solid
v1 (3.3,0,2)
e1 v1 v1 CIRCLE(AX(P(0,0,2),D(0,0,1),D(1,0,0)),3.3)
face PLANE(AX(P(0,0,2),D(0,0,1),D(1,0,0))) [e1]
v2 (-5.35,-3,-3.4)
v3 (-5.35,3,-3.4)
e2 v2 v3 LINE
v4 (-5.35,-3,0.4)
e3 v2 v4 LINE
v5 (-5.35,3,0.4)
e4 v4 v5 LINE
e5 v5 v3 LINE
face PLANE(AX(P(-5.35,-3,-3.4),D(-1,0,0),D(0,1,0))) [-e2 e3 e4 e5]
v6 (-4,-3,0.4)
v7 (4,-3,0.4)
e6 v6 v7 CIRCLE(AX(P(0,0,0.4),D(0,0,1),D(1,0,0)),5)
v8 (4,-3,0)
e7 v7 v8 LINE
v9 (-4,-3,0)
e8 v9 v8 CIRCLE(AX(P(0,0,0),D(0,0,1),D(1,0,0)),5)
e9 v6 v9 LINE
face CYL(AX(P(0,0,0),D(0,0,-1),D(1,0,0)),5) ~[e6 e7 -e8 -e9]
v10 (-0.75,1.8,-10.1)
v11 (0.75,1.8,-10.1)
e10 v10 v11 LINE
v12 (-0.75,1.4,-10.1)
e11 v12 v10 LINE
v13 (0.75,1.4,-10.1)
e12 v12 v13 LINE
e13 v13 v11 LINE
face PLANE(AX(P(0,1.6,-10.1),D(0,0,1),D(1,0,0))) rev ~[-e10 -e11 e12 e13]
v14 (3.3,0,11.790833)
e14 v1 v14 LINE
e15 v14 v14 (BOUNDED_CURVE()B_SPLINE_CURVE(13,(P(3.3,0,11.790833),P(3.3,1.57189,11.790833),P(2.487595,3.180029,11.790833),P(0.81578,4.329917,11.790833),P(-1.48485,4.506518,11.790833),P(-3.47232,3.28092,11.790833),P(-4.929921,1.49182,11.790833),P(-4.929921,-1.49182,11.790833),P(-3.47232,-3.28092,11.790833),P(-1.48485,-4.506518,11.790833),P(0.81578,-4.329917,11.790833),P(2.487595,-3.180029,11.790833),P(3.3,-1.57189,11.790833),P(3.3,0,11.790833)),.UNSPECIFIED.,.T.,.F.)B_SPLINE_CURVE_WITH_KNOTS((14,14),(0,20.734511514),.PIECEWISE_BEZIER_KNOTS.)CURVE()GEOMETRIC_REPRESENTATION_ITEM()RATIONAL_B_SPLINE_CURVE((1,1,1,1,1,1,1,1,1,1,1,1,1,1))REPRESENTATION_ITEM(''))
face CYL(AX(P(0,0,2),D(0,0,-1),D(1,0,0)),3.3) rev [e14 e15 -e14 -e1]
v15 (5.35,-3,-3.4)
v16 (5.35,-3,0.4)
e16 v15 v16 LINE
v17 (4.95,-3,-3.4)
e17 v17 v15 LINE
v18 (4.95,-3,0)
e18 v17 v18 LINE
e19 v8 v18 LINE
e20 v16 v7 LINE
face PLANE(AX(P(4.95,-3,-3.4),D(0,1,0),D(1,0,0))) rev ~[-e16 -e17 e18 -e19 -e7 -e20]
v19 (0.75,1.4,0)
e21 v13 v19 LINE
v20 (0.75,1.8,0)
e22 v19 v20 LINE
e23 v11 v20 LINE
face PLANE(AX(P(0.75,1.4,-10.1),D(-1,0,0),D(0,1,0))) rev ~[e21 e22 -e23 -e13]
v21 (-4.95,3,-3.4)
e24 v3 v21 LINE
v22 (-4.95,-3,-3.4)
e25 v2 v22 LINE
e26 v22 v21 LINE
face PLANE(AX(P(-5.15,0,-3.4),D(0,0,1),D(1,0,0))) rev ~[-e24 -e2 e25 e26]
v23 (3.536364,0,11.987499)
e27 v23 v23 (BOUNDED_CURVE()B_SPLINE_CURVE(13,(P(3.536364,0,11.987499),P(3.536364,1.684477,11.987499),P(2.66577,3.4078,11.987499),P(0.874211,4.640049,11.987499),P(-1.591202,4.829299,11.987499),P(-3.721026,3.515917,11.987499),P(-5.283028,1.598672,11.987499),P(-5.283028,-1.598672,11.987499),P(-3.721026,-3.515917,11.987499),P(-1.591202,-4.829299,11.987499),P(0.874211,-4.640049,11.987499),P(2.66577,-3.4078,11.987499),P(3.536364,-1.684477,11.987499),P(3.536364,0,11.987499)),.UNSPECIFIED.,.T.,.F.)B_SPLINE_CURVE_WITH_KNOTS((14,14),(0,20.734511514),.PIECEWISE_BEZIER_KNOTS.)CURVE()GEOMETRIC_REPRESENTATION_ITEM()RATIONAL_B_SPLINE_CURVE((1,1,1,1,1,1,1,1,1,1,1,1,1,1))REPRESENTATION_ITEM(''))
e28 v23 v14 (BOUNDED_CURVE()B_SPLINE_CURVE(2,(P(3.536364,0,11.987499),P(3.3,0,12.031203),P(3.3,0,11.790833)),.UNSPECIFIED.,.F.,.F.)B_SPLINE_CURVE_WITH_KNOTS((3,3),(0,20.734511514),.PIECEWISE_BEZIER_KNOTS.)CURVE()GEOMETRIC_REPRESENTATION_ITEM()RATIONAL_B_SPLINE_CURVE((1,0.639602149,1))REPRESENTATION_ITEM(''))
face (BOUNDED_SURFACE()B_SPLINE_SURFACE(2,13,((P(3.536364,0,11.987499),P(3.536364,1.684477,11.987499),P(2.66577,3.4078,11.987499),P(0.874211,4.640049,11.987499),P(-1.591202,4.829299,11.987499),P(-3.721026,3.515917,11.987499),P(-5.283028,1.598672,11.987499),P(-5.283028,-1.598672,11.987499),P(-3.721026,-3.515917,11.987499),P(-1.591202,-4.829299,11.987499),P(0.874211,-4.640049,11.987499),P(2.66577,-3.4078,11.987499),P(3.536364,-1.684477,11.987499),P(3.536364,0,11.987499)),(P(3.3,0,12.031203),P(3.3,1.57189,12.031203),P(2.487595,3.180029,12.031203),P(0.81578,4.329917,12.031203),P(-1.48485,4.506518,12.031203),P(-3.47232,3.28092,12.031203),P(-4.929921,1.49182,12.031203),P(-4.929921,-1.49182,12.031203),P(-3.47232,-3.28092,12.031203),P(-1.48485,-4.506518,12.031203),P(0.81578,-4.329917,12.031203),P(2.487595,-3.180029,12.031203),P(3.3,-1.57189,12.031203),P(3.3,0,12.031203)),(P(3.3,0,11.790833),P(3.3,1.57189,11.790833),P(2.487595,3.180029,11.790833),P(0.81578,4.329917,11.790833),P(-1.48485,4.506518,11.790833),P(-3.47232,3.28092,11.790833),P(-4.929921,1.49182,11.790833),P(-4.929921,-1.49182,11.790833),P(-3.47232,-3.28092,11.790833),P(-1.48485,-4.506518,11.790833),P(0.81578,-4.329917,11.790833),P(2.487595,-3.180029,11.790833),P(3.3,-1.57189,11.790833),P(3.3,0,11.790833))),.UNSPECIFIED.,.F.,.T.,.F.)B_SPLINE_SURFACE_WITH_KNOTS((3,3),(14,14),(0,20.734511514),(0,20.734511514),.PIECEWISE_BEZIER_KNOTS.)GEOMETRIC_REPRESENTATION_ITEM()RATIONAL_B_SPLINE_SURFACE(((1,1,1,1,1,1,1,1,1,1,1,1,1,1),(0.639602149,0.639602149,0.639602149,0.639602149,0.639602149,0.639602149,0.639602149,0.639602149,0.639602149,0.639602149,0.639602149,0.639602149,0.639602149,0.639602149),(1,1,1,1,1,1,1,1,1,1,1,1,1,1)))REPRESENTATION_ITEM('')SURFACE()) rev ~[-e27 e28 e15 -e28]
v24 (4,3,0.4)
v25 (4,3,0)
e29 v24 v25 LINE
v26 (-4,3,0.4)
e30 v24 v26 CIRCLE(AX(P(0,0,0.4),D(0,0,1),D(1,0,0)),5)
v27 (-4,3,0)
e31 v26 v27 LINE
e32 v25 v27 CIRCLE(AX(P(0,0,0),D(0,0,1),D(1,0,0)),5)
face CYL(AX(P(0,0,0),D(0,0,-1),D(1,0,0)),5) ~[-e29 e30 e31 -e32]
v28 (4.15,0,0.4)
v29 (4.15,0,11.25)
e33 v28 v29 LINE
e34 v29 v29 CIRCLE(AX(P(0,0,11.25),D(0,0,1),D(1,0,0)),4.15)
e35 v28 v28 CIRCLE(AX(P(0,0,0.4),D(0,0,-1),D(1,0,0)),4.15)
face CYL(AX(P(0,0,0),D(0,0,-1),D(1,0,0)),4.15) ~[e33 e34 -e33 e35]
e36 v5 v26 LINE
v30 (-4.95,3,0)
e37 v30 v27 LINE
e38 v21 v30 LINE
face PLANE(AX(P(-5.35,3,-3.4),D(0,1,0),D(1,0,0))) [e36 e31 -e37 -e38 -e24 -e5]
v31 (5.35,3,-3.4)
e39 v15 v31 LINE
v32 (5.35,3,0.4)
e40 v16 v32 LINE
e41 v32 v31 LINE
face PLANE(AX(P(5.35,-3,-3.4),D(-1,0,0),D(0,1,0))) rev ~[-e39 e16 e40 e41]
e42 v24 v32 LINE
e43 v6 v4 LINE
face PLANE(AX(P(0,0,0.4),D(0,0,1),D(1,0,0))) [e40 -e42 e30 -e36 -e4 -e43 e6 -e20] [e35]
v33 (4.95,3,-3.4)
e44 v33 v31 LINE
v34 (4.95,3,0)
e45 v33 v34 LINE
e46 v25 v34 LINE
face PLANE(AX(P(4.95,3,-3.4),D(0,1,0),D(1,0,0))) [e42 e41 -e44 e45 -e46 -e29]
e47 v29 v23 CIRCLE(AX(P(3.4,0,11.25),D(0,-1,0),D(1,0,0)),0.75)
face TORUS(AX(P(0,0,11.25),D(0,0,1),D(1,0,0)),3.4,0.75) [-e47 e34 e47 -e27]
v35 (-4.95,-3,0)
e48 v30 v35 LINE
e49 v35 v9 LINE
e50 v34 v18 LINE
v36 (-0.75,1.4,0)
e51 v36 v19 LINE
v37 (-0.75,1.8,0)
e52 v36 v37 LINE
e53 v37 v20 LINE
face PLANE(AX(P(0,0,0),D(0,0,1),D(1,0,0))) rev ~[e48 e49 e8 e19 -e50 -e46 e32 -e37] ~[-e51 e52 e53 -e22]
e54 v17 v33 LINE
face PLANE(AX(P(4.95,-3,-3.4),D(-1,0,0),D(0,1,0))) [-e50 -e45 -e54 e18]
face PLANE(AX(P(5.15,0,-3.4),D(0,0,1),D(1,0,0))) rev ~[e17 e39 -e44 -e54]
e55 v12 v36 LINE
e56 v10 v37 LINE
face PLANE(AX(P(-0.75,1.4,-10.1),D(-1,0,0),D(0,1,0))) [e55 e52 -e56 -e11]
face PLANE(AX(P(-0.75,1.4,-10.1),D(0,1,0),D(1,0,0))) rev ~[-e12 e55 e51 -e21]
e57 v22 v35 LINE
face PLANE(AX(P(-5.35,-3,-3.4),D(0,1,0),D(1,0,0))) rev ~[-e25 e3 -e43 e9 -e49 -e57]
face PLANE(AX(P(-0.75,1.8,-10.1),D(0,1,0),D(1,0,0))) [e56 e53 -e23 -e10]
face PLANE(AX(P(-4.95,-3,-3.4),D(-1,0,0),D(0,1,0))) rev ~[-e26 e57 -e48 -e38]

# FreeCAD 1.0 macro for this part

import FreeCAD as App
import Part
import Sketcher


def edges_at(feature, points):
    """Names of the edges that pass closest to the given points."""
    edges = feature.Shape.Edges
    near = lambda p: min(range(len(edges)), key=lambda i: edges[i].distToShape(Part.Vertex(*p))[0])
    return sorted({f"Edge{near(p) + 1}" for p in points})

doc = App.newDocument("Part")
body = doc.addObject("PartDesign::Body", "Body")

# Sketch on XY plane
sketch1 = body.newObject("Sketcher::SketchObject", "Sketch")
sketch1.AttachmentSupport = (doc.getObject("XY_Plane"), [""])
sketch1.MapMode = "FlatFace"
sketch1.addGeometry([
    Part.LineSegment(App.Vector(-5.35, 3, 0), App.Vector(-5.35, -3, 0)),
    Part.LineSegment(App.Vector(-5.35, -3, 0), App.Vector(5.35, -3, 0)),
    Part.LineSegment(App.Vector(5.35, -3, 0), App.Vector(5.35, 3, 0)),
    Part.LineSegment(App.Vector(5.35, 3, 0), App.Vector(-5.35, 3, 0)),
], False)
sketch1.addConstraint([
    Sketcher.Constraint("Coincident", 0, 2, 1, 1),
    Sketcher.Constraint("Coincident", 1, 2, 2, 1),
    Sketcher.Constraint("Coincident", 2, 2, 3, 1),
    Sketcher.Constraint("Coincident", 3, 2, 0, 1),
    Sketcher.Constraint("Vertical", 0),
    Sketcher.Constraint("Horizontal", 1),
    Sketcher.Constraint("Vertical", 2),
    Sketcher.Constraint("Horizontal", 3),
    Sketcher.Constraint("Symmetric", 0, 2, 2, 2, -1, 1),
    Sketcher.Constraint("DistanceY", 0, 2, 0, 1, 6.0),
    Sketcher.Constraint("DistanceX", 1, 1, 1, 2, 10.7),
])
pad1 = body.newObject("PartDesign::Pad", "Pad")
pad1.Profile = sketch1
pad1.Length = 0.4

# Sketch on XY plane
sketch2 = body.newObject("Sketcher::SketchObject", "Sketch001")
sketch2.AttachmentSupport = (doc.getObject("XY_Plane"), [""])
sketch2.MapMode = "FlatFace"
sketch2.addGeometry(Part.Circle(App.Vector(0, 0, 0), App.Vector(0, 0, 1), 5), False)
sketch2.addConstraint([
    Sketcher.Constraint("Coincident", 0, 3, -1, 1),
    Sketcher.Constraint("Diameter", 0, 10.0),
])
pad2 = body.newObject("PartDesign::Pad", "Pad001")
pad2.Profile = sketch2
pad2.Length = 0.4

# Sketch on XY plane
sketch3 = body.newObject("Sketcher::SketchObject", "Sketch002")
sketch3.AttachmentSupport = (doc.getObject("XY_Plane"), [""])
sketch3.MapMode = "FlatFace"
sketch3.addGeometry(Part.Circle(App.Vector(0, 0, 0), App.Vector(0, 0, 1), 4.15), False)
sketch3.addConstraint([
    Sketcher.Constraint("Coincident", 0, 3, -1, 1),
    Sketcher.Constraint("Diameter", 0, 8.3),
])
pad3 = body.newObject("PartDesign::Pad", "Pad002")
pad3.Profile = sketch3
pad3.Length = 12
doc.recompute()

fillet = body.newObject("PartDesign::Fillet", "Fillet")
fillet.Base = (pad3, edges_at(pad3, [(-4.15, 0, 12)]))
fillet.Radius = 0.75

# Sketch on XY plane
sketch4 = body.newObject("Sketcher::SketchObject", "Sketch003")
sketch4.AttachmentSupport = (doc.getObject("XY_Plane"), [""])
sketch4.MapMode = "FlatFace"
sketch4.AttachmentOffset = App.Placement(App.Vector(0, 0, 2), App.Rotation())
sketch4.addGeometry(Part.Circle(App.Vector(0, 0, 0), App.Vector(0, 0, 1), 3.3), False)
sketch4.addConstraint([
    Sketcher.Constraint("Coincident", 0, 3, -1, 1),
    Sketcher.Constraint("Diameter", 0, 6.6),
])
pocket1 = body.newObject("PartDesign::Pocket", "Pocket")
pocket1.Profile = sketch4
pocket1.Length = 10
pocket1.Reversed = True
doc.recompute()

fillet2 = body.newObject("PartDesign::Fillet", "Fillet001")
fillet2.Base = (pocket1, edges_at(pocket1, [(-3.3, 0, 12)]))
fillet2.Radius = 0.2

# Sketch on XY plane
sketch5 = body.newObject("Sketcher::SketchObject", "Sketch004")
sketch5.AttachmentSupport = (doc.getObject("XY_Plane"), [""])
sketch5.MapMode = "FlatFace"
sketch5.AttachmentOffset = App.Placement(App.Vector(0, 0, -10.1), App.Rotation())
sketch5.addGeometry([
    Part.LineSegment(App.Vector(-0.75, 1.8, 0), App.Vector(-0.75, 1.4, 0)),
    Part.LineSegment(App.Vector(-0.75, 1.4, 0), App.Vector(0.75, 1.4, 0)),
    Part.LineSegment(App.Vector(0.75, 1.4, 0), App.Vector(0.75, 1.8, 0)),
    Part.LineSegment(App.Vector(0.75, 1.8, 0), App.Vector(-0.75, 1.8, 0)),
], False)
sketch5.addConstraint([
    Sketcher.Constraint("Coincident", 0, 2, 1, 1),
    Sketcher.Constraint("Coincident", 1, 2, 2, 1),
    Sketcher.Constraint("Coincident", 2, 2, 3, 1),
    Sketcher.Constraint("Coincident", 3, 2, 0, 1),
    Sketcher.Constraint("Vertical", 0),
    Sketcher.Constraint("Horizontal", 1),
    Sketcher.Constraint("Vertical", 2),
    Sketcher.Constraint("Horizontal", 3),
    Sketcher.Constraint("DistanceX", 1, 1, 1, 2, 1.5),
    Sketcher.Constraint("DistanceY", 0, 2, 0, 1, 0.4),
    Sketcher.Constraint("DistanceY", -1, 1, 0, 2, 1.4),
    Sketcher.Constraint("DistanceX", 0, 2, -1, 1, 0.75),
])
pad4 = body.newObject("PartDesign::Pad", "Pad003")
pad4.Profile = sketch5
pad4.Length = 10.1

# Sketch on XY plane
sketch6 = body.newObject("Sketcher::SketchObject", "Sketch005")
sketch6.AttachmentSupport = (doc.getObject("XY_Plane"), [""])
sketch6.MapMode = "FlatFace"
sketch6.AttachmentOffset = App.Placement(App.Vector(0, 0, -3.4), App.Rotation())
sketch6.addGeometry([
    Part.LineSegment(App.Vector(4.95, 3, 0), App.Vector(4.95, -3, 0)),
    Part.LineSegment(App.Vector(4.95, -3, 0), App.Vector(5.35, -3, 0)),
    Part.LineSegment(App.Vector(5.35, -3, 0), App.Vector(5.35, 3, 0)),
    Part.LineSegment(App.Vector(5.35, 3, 0), App.Vector(4.95, 3, 0)),
], False)
sketch6.addConstraint([
    Sketcher.Constraint("Coincident", 0, 2, 1, 1),
    Sketcher.Constraint("Coincident", 1, 2, 2, 1),
    Sketcher.Constraint("Coincident", 2, 2, 3, 1),
    Sketcher.Constraint("Coincident", 3, 2, 0, 1),
    Sketcher.Constraint("Vertical", 0),
    Sketcher.Constraint("Horizontal", 1),
    Sketcher.Constraint("Vertical", 2),
    Sketcher.Constraint("Horizontal", 3),
    Sketcher.Constraint("DistanceY", 0, 2, 0, 1, 6.0),
    Sketcher.Constraint("DistanceX", 1, 1, 1, 2, 0.4),
    Sketcher.Constraint("DistanceY", 0, 2, -1, 1, 3.0),
    Sketcher.Constraint("DistanceX", -1, 1, 0, 2, 4.95),
])
pad5 = body.newObject("PartDesign::Pad", "Pad004")
pad5.Profile = sketch6
pad5.Length = 3.8

# Sketch on XY plane
sketch7 = body.newObject("Sketcher::SketchObject", "Sketch006")
sketch7.AttachmentSupport = (doc.getObject("XY_Plane"), [""])
sketch7.MapMode = "FlatFace"
sketch7.AttachmentOffset = App.Placement(App.Vector(0, 0, -3.4), App.Rotation())
sketch7.addGeometry([
    Part.LineSegment(App.Vector(-5.35, 3, 0), App.Vector(-5.35, -3, 0)),
    Part.LineSegment(App.Vector(-5.35, -3, 0), App.Vector(-4.95, -3, 0)),
    Part.LineSegment(App.Vector(-4.95, -3, 0), App.Vector(-4.95, 3, 0)),
    Part.LineSegment(App.Vector(-4.95, 3, 0), App.Vector(-5.35, 3, 0)),
], False)
sketch7.addConstraint([
    Sketcher.Constraint("Coincident", 0, 2, 1, 1),
    Sketcher.Constraint("Coincident", 1, 2, 2, 1),
    Sketcher.Constraint("Coincident", 2, 2, 3, 1),
    Sketcher.Constraint("Coincident", 3, 2, 0, 1),
    Sketcher.Constraint("Vertical", 0),
    Sketcher.Constraint("Horizontal", 1),
    Sketcher.Constraint("Vertical", 2),
    Sketcher.Constraint("Horizontal", 3),
    Sketcher.Constraint("DistanceY", 0, 2, 0, 1, 6.0),
    Sketcher.Constraint("DistanceX", 1, 1, 1, 2, 0.4),
    Sketcher.Constraint("DistanceY", 0, 2, -1, 1, 3.0),
    Sketcher.Constraint("DistanceX", 0, 2, -1, 1, 5.35),
])
pad6 = body.newObject("PartDesign::Pad", "Pad005")
pad6.Profile = sketch7
pad6.Length = 3.8

doc.recompute()
